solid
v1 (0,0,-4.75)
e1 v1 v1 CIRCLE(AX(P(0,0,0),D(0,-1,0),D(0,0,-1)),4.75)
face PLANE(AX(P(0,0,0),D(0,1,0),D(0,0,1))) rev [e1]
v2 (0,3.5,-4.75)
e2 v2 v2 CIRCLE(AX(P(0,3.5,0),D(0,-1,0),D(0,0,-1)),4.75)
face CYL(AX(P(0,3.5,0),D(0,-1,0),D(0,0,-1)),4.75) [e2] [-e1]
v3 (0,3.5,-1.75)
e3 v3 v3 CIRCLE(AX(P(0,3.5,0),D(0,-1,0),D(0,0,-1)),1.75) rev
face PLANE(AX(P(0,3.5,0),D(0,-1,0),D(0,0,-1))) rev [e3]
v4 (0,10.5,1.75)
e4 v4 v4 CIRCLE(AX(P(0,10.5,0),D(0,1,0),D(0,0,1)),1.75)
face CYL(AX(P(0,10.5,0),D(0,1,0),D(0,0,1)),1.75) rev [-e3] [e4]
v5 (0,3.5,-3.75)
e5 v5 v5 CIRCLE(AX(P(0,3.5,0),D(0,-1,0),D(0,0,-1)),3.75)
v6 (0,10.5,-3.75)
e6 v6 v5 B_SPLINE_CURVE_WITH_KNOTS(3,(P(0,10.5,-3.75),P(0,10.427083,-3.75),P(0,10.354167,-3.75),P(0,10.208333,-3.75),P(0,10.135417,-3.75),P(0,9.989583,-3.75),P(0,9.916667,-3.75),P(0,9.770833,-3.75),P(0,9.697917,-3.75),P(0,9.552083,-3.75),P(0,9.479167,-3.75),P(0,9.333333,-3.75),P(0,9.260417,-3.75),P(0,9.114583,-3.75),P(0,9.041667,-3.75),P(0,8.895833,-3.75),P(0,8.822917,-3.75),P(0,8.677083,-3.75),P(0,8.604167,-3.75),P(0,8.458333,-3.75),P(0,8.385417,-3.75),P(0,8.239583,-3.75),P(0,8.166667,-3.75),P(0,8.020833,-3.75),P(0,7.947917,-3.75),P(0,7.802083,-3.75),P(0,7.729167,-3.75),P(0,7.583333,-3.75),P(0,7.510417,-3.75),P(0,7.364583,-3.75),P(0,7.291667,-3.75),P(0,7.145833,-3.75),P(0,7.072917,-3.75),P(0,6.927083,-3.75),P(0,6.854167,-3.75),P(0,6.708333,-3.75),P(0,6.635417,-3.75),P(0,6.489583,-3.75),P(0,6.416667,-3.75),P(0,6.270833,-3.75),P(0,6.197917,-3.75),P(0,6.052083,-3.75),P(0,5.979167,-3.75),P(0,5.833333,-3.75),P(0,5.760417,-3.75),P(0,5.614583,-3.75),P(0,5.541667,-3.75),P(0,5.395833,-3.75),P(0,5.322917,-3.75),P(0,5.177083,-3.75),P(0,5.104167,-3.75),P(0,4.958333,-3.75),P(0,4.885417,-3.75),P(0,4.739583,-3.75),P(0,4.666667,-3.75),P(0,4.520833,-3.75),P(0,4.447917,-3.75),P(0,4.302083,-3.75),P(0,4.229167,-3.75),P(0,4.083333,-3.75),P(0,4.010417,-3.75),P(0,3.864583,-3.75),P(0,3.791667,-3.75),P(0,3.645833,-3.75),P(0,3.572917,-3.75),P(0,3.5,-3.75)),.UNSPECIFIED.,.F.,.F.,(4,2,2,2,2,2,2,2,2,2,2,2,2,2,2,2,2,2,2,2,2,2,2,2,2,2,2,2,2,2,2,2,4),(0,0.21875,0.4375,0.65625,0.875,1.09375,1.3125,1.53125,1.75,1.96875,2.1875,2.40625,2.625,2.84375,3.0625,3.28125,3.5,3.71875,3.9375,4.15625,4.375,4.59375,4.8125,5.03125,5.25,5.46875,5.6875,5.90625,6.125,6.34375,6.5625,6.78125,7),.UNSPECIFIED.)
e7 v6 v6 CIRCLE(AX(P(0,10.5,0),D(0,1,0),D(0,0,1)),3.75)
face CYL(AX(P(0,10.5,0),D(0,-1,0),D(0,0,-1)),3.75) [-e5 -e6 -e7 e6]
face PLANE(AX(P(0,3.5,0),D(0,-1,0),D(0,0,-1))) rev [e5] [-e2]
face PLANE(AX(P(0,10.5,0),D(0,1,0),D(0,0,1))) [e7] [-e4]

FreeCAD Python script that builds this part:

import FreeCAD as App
import Part
import Sketcher

V = App.Vector

doc = App.newDocument("Part")
body = doc.addObject("PartDesign::Body", "Body")

sketch1 = doc.addObject("Sketcher::SketchObject", "Sketch")
body.addObject(sketch1)
sketch1.AttachmentSupport = (doc.XZ_Plane, [""])
sketch1.MapMode = "FlatFace"
sketch1.addGeometry(Part.Circle(V(0, 0, 0), V(0, 0, 1), 3.8), False)
sketch1.addConstraint(Sketcher.Constraint("Coincident", 0, 3, -1, 1))
sketch1.addConstraint(Sketcher.Constraint("Diameter", 0, 7.5))
pad1 = doc.addObject("PartDesign::Pad", "Pad")
body.addObject(pad1)
pad1.Profile = sketch1
pad1.Length = 10.5
pad1.Reversed = True

sketch2 = doc.addObject("Sketcher::SketchObject", "Sketch001")
body.addObject(sketch2)
sketch2.AttachmentSupport = (doc.XZ_Plane, [""])
sketch2.MapMode = "FlatFace"
sketch2.AttachmentOffset = App.Placement(V(0, 0, -10.5), App.Rotation())
sketch2.addGeometry(Part.Circle(V(0, 0, 0), V(0, 0, 1), 1.8), False)
sketch2.addConstraint(Sketcher.Constraint("Coincident", 0, 3, -1, 1))
sketch2.addConstraint(Sketcher.Constraint("Diameter", 0, 3.5))
doc.recompute()
hole = doc.addObject("PartDesign::Hole", "Hole")
body.addObject(hole)
hole.Profile = sketch2
hole.ThreadType = "None"
hole.Diameter = 3.5
hole.DepthType = "ThroughAll"
hole.Reversed = True

sketch3 = doc.addObject("Sketcher::SketchObject", "Sketch002")
body.addObject(sketch3)
sketch3.AttachmentSupport = (doc.XZ_Plane, [""])
sketch3.MapMode = "FlatFace"
sketch3.addGeometry(Part.Circle(V(0, 0, 0), V(0, 0, 1), 4.8), False)
sketch3.addConstraint(Sketcher.Constraint("Coincident", 0, 3, -1, 1))
sketch3.addConstraint(Sketcher.Constraint("Diameter", 0, 9.5))
pad2 = doc.addObject("PartDesign::Pad", "Pad001")
body.addObject(pad2)
pad2.Profile = sketch3
pad2.Length = 3.5
pad2.Reversed = True

doc.recompute()
